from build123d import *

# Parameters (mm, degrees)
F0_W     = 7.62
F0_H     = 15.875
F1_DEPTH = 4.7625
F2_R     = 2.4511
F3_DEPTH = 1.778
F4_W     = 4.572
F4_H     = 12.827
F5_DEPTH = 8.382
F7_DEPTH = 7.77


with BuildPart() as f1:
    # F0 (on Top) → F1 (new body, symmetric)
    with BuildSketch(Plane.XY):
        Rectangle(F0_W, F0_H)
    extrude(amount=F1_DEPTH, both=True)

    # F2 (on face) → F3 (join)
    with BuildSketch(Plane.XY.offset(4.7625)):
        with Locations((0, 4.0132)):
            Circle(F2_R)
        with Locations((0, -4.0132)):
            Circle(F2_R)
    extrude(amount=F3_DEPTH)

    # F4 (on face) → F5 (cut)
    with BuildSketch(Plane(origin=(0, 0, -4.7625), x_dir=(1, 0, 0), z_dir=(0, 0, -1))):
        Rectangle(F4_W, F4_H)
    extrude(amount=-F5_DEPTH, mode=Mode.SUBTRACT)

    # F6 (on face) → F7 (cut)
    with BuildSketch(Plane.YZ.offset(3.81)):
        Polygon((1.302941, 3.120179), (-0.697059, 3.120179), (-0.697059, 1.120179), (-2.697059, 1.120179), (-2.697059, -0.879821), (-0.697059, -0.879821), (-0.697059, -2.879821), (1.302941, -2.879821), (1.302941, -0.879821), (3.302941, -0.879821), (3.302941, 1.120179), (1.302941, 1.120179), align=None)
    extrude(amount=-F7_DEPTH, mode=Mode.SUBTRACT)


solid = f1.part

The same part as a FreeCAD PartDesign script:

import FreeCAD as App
import Part
import Sketcher
from FreeCAD import Vector
Q = App.Units.Quantity

doc = App.newDocument("Part")
body = doc.addObject("PartDesign::Body", "Body")

sketch1 = body.newObject("Sketcher::SketchObject", "Sketch")
sketch1.AttachmentSupport = (doc.getObject("XY_Plane"), [""])
sketch1.MapMode = "FlatFace"
sketch1.addGeometry(Part.LineSegment(Vector(-3.81, 7.9375, 0), Vector(-3.81, -7.9375, 0)), False)
sketch1.addGeometry(Part.LineSegment(Vector(-3.81, -7.9375, 0), Vector(3.81, -7.9375, 0)), False)
sketch1.addGeometry(Part.LineSegment(Vector(3.81, -7.9375, 0), Vector(3.81, 7.9375, 0)), False)
sketch1.addGeometry(Part.LineSegment(Vector(3.81, 7.9375, 0), Vector(-3.81, 7.9375, 0)), False)
sketch1.addConstraint(Sketcher.Constraint("Coincident", 0, 2, 1, 1))
sketch1.addConstraint(Sketcher.Constraint("Coincident", 1, 2, 2, 1))
sketch1.addConstraint(Sketcher.Constraint("Coincident", 2, 2, 3, 1))
sketch1.addConstraint(Sketcher.Constraint("Coincident", 3, 2, 0, 1))
sketch1.addConstraint(Sketcher.Constraint("Vertical", 0))
sketch1.addConstraint(Sketcher.Constraint("Horizontal", 1))
sketch1.addConstraint(Sketcher.Constraint("Vertical", 2))
sketch1.addConstraint(Sketcher.Constraint("Horizontal", 3))
sketch1.addConstraint(Sketcher.Constraint("Symmetric", 0, 2, 2, 2, -1, 1))
sketch1.addConstraint(Sketcher.Constraint("DistanceX", 1, 1, 1, 2, Q("0.3 in")))
sketch1.addConstraint(Sketcher.Constraint("DistanceY", 0, 2, 0, 1, Q("0.625 in")))
pad1 = body.newObject("PartDesign::Pad", "Pad")
pad1.Profile = sketch1
pad1.Length = Q("0.375 in")
pad1.Midplane = True

sketch2 = body.newObject("Sketcher::SketchObject", "Sketch001")
sketch2.AttachmentSupport = (doc.getObject("XY_Plane"), [""])
sketch2.MapMode = "FlatFace"
sketch2.AttachmentOffset = App.Placement(Vector(0, 0, 0.1875 * 25.4), App.Rotation())
sketch2.addGeometry(Part.Circle(Vector(0, 4.0132, 0), Vector(0, 0, 1), 2.4511), False)
sketch2.addGeometry(Part.Circle(Vector(0, -4.0132, 0), Vector(0, 0, 1), 2.4511), False)
sketch2.addConstraint(Sketcher.Constraint("Equal", 0, 1))
sketch2.addConstraint(Sketcher.Constraint("Symmetric", 0, 3, 1, 3, -1, 1))
sketch2.addConstraint(Sketcher.Constraint("PointOnObject", 0, 3, -2))
sketch2.addConstraint(Sketcher.Constraint("Diameter", 0, Q("0.193 in")))
sketch2.addConstraint(Sketcher.Constraint("DistanceY", -1, 1, 0, 3, Q("0.158 in")))
pad2 = body.newObject("PartDesign::Pad", "Pad001")
pad2.Profile = sketch2
pad2.Length = Q("0.07 in")

sketch3 = body.newObject("Sketcher::SketchObject", "Sketch002")
sketch3.AttachmentSupport = (doc.getObject("XY_Plane"), [""])
sketch3.MapMode = "FlatFace"
sketch3.AttachmentOffset = App.Placement(Vector(0, 0, -0.1875 * 25.4), App.Rotation())
sketch3.addGeometry(Part.LineSegment(Vector(-2.286, -6.4135, 0), Vector(-2.286, 6.4135, 0)), False)
sketch3.addGeometry(Part.LineSegment(Vector(-2.286, 6.4135, 0), Vector(2.286, 6.4135, 0)), False)
sketch3.addGeometry(Part.LineSegment(Vector(2.286, 6.4135, 0), Vector(2.286, -6.4135, 0)), False)
sketch3.addGeometry(Part.LineSegment(Vector(2.286, -6.4135, 0), Vector(-2.286, -6.4135, 0)), False)
sketch3.addConstraint(Sketcher.Constraint("Coincident", 0, 2, 1, 1))
sketch3.addConstraint(Sketcher.Constraint("Coincident", 1, 2, 2, 1))
sketch3.addConstraint(Sketcher.Constraint("Coincident", 2, 2, 3, 1))
sketch3.addConstraint(Sketcher.Constraint("Coincident", 3, 2, 0, 1))
sketch3.addConstraint(Sketcher.Constraint("Vertical", 0))
sketch3.addConstraint(Sketcher.Constraint("Horizontal", 1))
sketch3.addConstraint(Sketcher.Constraint("Vertical", 2))
sketch3.addConstraint(Sketcher.Constraint("Horizontal", 3))
sketch3.addConstraint(Sketcher.Constraint("Symmetric", 0, 2, 2, 2, -1, 1))
sketch3.addConstraint(Sketcher.Constraint("DistanceX", 1, 1, 1, 2, Q("0.18 in")))
sketch3.addConstraint(Sketcher.Constraint("DistanceY", 0, 1, 0, 2, Q("0.505 in")))
pocket1 = body.newObject("PartDesign::Pocket", "Pocket")
pocket1.Profile = sketch3
pocket1.Length = Q("0.33 in")
pocket1.Reversed = True

sketch4 = body.newObject("Sketcher::SketchObject", "Sketch003")
sketch4.AttachmentSupport = (doc.getObject("YZ_Plane"), [""])
sketch4.MapMode = "FlatFace"
sketch4.AttachmentOffset = App.Placement(Vector(0, 0, 0.15 * 25.4), App.Rotation())
sketch4.addGeometry(Part.LineSegment(Vector(1.302941, 3.120179, 0), Vector(-0.697059, 3.120179, 0)), False)
sketch4.addGeometry(Part.LineSegment(Vector(-0.697059, 3.120179, 0), Vector(-0.697059, 1.120179, 0)), False)
sketch4.addGeometry(Part.LineSegment(Vector(-0.697059, 1.120179, 0), Vector(-2.697059, 1.120179, 0)), False)
sketch4.addGeometry(Part.LineSegment(Vector(-2.697059, 1.120179, 0), Vector(-2.697059, -0.879821, 0)), False)
sketch4.addGeometry(Part.LineSegment(Vector(-2.697059, -0.879821, 0), Vector(-0.697059, -0.879821, 0)), False)
sketch4.addGeometry(Part.LineSegment(Vector(-0.697059, -0.879821, 0), Vector(-0.697059, -2.879821, 0)), False)
sketch4.addGeometry(Part.LineSegment(Vector(-0.697059, -2.879821, 0), Vector(1.302941, -2.879821, 0)), False)
sketch4.addGeometry(Part.LineSegment(Vector(1.302941, -2.879821, 0), Vector(1.302941, -0.879821, 0)), False)
sketch4.addGeometry(Part.LineSegment(Vector(1.302941, -0.879821, 0), Vector(3.302941, -0.879821, 0)), False)
sketch4.addGeometry(Part.LineSegment(Vector(3.302941, -0.879821, 0), Vector(3.302941, 1.120179, 0)), False)
sketch4.addGeometry(Part.LineSegment(Vector(3.302941, 1.120179, 0), Vector(1.302941, 1.120179, 0)), False)
sketch4.addGeometry(Part.LineSegment(Vector(1.302941, 1.120179, 0), Vector(1.302941, 3.120179, 0)), False)
sketch4.addConstraint(Sketcher.Constraint("Coincident", 0, 2, 1, 1))
sketch4.addConstraint(Sketcher.Constraint("Coincident", 1, 2, 2, 1))
sketch4.addConstraint(Sketcher.Constraint("Coincident", 2, 2, 3, 1))
sketch4.addConstraint(Sketcher.Constraint("Coincident", 3, 2, 4, 1))
sketch4.addConstraint(Sketcher.Constraint("Coincident", 4, 2, 5, 1))
sketch4.addConstraint(Sketcher.Constraint("Coincident", 5, 2, 6, 1))
sketch4.addConstraint(Sketcher.Constraint("Coincident", 6, 2, 7, 1))
sketch4.addConstraint(Sketcher.Constraint("Coincident", 7, 2, 8, 1))
sketch4.addConstraint(Sketcher.Constraint("Coincident", 8, 2, 9, 1))
sketch4.addConstraint(Sketcher.Constraint("Coincident", 9, 2, 10, 1))
sketch4.addConstraint(Sketcher.Constraint("Coincident", 10, 2, 11, 1))
sketch4.addConstraint(Sketcher.Constraint("Coincident", 11, 2, 0, 1))
sketch4.addConstraint(Sketcher.Constraint("Horizontal", 0))
sketch4.addConstraint(Sketcher.Constraint("Vertical", 1))
sketch4.addConstraint(Sketcher.Constraint("Horizontal", 2))
sketch4.addConstraint(Sketcher.Constraint("Vertical", 3))
sketch4.addConstraint(Sketcher.Constraint("Horizontal", 4))
sketch4.addConstraint(Sketcher.Constraint("Vertical", 5))
sketch4.addConstraint(Sketcher.Constraint("Horizontal", 6))
sketch4.addConstraint(Sketcher.Constraint("Vertical", 7))
sketch4.addConstraint(Sketcher.Constraint("Horizontal", 8))
sketch4.addConstraint(Sketcher.Constraint("Vertical", 9))
sketch4.addConstraint(Sketcher.Constraint("Horizontal", 10))
sketch4.addConstraint(Sketcher.Constraint("Vertical", 11))
sketch4.addConstraint(Sketcher.Constraint("Horizontal", 4, 2, 7, 2))
sketch4.addConstraint(Sketcher.Constraint("Horizontal", 2, 2, 9, 2))
sketch4.addConstraint(Sketcher.Constraint("Vertical", 1, 2, 4, 2))
sketch4.addConstraint(Sketcher.Constraint("Vertical", 7, 2, 10, 2))
sketch4.addConstraint(Sketcher.Constraint("Equal", 0, 2))
sketch4.addConstraint(Sketcher.Constraint("Equal", 6, 8))
sketch4.addConstraint(Sketcher.Constraint("Equal", 10, 1))
sketch4.addConstraint(Sketcher.Constraint("Equal", 1, 3))
sketch4.addConstraint(Sketcher.Constraint("Equal", 3, 5))
sketch4.addConstraint(Sketcher.Constraint("DistanceX", 0, 2, 0, 1, 2.0))
sketch4.addConstraint(Sketcher.Constraint("DistanceX", 0, 2, -1, 1, 0.697059))
sketch4.addConstraint(Sketcher.Constraint("DistanceY", -1, 1, 0, 2, 3.120179))
pocket2 = body.newObject("PartDesign::Pocket", "Pocket001")
pocket2.Profile = sketch4
pocket2.Length = 7.77

doc.recompute()
